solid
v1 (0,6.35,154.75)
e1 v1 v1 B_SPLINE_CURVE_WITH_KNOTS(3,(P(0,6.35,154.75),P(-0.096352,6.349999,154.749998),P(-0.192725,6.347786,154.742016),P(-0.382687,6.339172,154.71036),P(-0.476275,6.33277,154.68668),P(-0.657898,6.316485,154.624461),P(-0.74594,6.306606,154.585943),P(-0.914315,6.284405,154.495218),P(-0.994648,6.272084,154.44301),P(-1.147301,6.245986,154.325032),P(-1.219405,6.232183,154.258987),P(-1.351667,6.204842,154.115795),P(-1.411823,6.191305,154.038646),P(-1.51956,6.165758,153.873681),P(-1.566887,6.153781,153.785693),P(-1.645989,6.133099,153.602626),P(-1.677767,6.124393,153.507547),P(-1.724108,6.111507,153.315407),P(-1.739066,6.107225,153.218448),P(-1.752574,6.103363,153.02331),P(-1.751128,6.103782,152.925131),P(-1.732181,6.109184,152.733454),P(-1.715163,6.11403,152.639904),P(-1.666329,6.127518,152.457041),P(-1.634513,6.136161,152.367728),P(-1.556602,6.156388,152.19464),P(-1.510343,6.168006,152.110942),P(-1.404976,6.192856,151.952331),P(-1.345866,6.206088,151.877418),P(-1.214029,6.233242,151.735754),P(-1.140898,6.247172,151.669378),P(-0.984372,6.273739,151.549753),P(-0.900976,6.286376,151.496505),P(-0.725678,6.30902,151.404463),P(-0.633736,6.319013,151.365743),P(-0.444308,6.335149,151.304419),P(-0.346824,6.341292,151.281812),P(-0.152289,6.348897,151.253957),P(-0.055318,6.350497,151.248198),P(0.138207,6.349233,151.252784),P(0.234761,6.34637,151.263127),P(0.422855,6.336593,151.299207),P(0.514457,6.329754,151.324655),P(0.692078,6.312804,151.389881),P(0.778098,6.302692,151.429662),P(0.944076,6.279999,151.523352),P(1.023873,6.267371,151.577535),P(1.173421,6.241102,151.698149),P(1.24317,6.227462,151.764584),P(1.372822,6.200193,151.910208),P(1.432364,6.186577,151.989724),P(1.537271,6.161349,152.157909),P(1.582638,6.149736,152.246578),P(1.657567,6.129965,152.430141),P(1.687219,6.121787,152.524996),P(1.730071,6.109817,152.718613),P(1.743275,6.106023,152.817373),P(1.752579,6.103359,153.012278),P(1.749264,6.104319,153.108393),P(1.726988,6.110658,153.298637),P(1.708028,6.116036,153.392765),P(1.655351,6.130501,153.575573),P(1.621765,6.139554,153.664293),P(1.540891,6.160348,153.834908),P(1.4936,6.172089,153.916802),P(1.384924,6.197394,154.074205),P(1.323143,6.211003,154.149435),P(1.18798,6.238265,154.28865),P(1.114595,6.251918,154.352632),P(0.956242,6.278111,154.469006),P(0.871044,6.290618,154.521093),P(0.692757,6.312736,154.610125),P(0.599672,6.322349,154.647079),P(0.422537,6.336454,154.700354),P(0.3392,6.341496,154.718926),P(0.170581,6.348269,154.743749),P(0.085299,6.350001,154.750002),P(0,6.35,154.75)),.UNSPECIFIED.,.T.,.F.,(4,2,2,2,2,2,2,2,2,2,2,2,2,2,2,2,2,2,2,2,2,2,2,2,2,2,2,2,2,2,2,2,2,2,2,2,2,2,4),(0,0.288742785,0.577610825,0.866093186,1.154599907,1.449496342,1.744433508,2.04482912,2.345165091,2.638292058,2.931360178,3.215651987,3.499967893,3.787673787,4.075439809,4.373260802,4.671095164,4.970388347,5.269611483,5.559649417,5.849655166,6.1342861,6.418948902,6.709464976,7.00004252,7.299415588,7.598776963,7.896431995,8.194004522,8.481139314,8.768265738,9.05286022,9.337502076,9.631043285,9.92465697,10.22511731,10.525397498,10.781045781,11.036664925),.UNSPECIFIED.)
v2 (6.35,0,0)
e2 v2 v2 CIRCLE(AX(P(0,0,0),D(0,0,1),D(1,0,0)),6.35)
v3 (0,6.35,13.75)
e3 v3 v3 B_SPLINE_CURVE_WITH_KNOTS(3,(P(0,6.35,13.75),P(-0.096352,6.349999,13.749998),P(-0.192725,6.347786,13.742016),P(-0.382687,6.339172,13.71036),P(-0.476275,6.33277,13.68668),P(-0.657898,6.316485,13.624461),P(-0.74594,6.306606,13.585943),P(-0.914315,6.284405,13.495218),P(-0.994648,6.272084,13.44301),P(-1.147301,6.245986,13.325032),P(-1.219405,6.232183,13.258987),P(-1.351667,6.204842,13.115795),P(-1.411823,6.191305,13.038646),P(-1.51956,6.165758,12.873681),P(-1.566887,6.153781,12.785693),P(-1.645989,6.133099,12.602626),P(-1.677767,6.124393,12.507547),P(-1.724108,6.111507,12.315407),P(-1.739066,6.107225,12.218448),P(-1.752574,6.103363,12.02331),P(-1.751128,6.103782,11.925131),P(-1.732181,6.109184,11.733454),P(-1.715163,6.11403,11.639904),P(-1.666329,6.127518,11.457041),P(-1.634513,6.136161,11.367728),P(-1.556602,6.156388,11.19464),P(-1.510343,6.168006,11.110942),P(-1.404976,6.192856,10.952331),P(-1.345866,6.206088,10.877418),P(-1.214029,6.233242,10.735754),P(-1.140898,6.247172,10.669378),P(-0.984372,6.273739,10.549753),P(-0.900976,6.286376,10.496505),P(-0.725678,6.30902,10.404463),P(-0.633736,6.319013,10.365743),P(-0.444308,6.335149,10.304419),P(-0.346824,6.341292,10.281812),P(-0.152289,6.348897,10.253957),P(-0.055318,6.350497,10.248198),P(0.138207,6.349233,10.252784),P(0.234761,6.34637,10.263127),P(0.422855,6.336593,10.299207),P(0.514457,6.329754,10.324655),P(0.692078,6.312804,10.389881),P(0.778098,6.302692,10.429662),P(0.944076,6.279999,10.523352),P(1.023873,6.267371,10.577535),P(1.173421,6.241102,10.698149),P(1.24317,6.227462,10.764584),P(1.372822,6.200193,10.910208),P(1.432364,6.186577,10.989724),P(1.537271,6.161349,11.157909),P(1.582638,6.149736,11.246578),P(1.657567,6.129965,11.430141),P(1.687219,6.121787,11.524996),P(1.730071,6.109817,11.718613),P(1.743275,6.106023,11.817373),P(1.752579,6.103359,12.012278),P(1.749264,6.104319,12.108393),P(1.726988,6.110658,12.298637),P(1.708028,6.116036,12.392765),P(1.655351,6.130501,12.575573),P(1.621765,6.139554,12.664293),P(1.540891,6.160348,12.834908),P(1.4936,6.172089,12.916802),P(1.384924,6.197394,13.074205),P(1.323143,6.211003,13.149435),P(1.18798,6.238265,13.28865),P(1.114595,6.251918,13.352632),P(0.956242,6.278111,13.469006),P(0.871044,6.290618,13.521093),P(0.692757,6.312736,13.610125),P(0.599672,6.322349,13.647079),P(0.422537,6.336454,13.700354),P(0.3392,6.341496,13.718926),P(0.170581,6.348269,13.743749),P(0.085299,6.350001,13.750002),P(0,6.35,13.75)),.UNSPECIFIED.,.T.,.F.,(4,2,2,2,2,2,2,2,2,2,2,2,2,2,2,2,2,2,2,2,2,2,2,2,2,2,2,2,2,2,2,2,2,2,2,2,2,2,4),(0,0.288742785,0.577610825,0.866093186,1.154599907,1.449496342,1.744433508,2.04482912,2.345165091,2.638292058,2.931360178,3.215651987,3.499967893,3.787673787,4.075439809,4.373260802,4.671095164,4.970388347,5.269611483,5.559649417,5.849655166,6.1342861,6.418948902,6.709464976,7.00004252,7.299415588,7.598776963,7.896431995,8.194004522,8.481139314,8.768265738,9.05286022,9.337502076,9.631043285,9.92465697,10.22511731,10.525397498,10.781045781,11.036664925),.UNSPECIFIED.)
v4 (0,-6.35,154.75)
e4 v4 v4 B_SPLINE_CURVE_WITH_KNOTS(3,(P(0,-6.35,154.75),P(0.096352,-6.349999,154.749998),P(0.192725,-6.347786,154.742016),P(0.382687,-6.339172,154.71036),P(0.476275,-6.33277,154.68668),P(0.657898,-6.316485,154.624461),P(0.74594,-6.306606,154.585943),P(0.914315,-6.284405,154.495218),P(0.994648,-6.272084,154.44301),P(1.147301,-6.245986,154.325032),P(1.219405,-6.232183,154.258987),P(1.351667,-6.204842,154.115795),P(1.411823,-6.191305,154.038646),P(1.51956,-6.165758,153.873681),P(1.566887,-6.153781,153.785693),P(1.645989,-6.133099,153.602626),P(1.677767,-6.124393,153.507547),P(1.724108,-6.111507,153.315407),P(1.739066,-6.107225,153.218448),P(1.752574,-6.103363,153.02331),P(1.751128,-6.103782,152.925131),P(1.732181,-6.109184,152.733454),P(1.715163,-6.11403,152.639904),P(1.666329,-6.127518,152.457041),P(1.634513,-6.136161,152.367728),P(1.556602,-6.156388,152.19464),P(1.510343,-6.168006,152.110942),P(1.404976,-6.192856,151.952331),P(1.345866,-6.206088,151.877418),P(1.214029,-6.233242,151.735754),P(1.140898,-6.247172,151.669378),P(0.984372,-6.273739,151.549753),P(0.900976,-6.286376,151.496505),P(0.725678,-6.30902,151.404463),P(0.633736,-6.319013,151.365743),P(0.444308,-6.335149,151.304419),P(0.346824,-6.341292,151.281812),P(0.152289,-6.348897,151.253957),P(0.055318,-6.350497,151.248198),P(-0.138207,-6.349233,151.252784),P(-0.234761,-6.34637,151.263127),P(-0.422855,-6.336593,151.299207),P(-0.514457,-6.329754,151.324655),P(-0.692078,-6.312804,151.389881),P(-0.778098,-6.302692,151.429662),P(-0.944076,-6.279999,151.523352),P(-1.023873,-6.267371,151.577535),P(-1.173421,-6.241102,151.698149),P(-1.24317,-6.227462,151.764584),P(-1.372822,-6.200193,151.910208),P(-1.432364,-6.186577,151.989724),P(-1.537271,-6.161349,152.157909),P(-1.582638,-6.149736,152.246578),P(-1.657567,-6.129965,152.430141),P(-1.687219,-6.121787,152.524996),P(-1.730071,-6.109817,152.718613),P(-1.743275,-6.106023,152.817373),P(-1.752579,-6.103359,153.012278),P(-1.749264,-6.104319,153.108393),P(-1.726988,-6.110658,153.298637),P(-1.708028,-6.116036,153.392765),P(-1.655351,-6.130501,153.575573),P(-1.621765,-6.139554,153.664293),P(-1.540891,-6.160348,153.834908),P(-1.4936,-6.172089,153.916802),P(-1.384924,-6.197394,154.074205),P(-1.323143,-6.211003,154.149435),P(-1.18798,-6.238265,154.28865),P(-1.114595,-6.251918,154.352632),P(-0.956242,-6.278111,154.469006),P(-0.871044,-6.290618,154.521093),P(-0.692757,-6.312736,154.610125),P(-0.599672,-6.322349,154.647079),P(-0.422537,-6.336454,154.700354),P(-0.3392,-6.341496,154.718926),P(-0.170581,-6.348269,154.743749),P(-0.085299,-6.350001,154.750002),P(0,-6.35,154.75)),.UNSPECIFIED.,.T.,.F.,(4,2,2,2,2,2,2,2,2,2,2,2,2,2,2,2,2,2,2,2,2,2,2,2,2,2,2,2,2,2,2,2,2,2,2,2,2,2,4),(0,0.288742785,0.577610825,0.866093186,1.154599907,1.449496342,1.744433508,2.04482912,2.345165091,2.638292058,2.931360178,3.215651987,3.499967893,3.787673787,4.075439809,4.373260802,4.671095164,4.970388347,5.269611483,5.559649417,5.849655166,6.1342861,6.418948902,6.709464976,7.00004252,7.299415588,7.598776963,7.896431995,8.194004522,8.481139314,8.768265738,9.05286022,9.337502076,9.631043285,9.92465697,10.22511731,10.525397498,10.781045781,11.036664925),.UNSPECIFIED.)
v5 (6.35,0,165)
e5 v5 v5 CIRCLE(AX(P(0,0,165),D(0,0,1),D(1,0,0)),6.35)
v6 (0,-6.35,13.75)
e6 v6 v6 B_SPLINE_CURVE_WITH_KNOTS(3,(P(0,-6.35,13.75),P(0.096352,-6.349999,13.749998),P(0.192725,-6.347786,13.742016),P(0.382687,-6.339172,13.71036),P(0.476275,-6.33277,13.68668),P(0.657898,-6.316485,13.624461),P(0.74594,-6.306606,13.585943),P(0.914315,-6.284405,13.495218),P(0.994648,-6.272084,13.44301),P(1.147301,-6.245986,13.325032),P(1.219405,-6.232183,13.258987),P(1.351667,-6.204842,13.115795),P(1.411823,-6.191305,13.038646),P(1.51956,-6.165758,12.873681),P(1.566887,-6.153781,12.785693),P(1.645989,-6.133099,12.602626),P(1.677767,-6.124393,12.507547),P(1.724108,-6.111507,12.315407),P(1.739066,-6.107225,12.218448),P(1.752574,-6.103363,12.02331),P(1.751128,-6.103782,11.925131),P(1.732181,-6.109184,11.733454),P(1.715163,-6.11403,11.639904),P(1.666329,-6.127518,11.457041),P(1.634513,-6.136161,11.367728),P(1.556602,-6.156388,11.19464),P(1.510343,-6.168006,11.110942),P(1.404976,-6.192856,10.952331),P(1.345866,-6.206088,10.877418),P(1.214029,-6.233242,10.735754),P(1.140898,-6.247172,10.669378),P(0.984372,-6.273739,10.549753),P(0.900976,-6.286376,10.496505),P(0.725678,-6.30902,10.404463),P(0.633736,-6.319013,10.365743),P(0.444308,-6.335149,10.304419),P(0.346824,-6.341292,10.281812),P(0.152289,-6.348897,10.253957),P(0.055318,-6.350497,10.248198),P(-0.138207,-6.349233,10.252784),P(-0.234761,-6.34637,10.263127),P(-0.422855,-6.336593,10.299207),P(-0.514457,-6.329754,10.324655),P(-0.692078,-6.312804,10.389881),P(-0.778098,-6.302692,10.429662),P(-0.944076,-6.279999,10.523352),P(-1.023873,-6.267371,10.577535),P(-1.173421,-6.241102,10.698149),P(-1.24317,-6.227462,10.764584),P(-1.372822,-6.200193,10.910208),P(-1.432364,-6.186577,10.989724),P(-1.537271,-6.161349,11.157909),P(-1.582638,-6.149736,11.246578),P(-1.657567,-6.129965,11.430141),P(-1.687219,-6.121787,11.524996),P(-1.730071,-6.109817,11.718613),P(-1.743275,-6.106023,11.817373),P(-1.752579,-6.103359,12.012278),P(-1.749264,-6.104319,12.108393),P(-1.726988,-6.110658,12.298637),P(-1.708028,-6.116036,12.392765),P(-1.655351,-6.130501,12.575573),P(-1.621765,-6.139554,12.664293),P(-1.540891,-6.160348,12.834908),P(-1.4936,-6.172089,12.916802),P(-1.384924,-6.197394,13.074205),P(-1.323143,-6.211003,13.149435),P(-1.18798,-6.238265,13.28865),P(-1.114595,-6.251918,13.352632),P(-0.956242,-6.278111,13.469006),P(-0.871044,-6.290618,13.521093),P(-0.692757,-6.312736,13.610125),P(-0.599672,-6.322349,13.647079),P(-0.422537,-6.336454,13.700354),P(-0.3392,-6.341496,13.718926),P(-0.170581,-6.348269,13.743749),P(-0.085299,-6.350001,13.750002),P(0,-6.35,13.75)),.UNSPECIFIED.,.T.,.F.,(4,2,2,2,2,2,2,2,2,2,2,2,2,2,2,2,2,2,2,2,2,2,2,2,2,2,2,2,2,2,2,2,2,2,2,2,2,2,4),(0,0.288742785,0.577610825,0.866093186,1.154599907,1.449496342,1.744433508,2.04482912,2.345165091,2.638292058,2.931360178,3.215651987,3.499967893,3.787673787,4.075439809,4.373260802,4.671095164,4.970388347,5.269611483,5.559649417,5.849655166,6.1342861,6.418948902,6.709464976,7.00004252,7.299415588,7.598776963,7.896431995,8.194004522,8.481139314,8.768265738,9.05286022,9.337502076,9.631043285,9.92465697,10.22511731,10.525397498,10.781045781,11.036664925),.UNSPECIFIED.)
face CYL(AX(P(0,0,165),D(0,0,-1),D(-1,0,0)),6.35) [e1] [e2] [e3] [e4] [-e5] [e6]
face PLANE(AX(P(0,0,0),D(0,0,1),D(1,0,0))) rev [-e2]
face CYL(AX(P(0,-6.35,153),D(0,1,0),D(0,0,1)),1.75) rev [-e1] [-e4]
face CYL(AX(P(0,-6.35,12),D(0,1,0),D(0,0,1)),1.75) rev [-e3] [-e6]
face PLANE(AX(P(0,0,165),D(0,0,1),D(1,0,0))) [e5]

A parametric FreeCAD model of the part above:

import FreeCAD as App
import Part
import Sketcher
from FreeCAD import Vector
Q = App.Units.Quantity

doc = App.newDocument("Part")
body = doc.addObject("PartDesign::Body", "Body")

# Sketch on XY plane
sketch1 = doc.addObject("Sketcher::SketchObject", "Sketch")
body.addObject(sketch1)
sketch1.AttachmentSupport = (doc.XY_Plane, [""])
sketch1.MapMode = "FlatFace"
sketch1.addGeometry(Part.Circle(Vector(0, 0, 0), Vector(0, 0, 1), 6.35), False)
sketch1.addConstraint([
    Sketcher.Constraint("Coincident", 0, 3, -1, 1),
    Sketcher.Constraint("Diameter", 0, Q("12.7 mm")),
])
pad1 = doc.addObject("PartDesign::Pad", "Pad")
body.addObject(pad1)
pad1.Profile = sketch1
pad1.Length = 165

# Sketch on XZ plane
sketch2 = doc.addObject("Sketcher::SketchObject", "Sketch001")
body.addObject(sketch2)
sketch2.AttachmentSupport = (doc.XZ_Plane, [""])
sketch2.MapMode = "FlatFace"
sketch2.addGeometry([
    Part.Circle(Vector(0, 12, 0), Vector(0, 0, 1), 1.75),
    Part.Circle(Vector(0, 153, 0), Vector(0, 0, 1), 1.75),
], False)
sketch2.addConstraint([
    Sketcher.Constraint("Equal", 0, 1),
    Sketcher.Constraint("PointOnObject", 0, 3, -2),
    Sketcher.Constraint("PointOnObject", 1, 3, -2),
    Sketcher.Constraint("Diameter", 0, Q("3.5 mm")),
    Sketcher.Constraint("DistanceY", -1, 1, 0, 3, Q("12 mm")),
    Sketcher.Constraint("DistanceY", -1, 1, 1, 3, Q("153 mm")),
])
pocket1 = doc.addObject("PartDesign::Pocket", "Pocket")
body.addObject(pocket1)
pocket1.Profile = sketch2
pocket1.Type = "ThroughAll"
pocket1.Midplane = True

doc.recompute()
